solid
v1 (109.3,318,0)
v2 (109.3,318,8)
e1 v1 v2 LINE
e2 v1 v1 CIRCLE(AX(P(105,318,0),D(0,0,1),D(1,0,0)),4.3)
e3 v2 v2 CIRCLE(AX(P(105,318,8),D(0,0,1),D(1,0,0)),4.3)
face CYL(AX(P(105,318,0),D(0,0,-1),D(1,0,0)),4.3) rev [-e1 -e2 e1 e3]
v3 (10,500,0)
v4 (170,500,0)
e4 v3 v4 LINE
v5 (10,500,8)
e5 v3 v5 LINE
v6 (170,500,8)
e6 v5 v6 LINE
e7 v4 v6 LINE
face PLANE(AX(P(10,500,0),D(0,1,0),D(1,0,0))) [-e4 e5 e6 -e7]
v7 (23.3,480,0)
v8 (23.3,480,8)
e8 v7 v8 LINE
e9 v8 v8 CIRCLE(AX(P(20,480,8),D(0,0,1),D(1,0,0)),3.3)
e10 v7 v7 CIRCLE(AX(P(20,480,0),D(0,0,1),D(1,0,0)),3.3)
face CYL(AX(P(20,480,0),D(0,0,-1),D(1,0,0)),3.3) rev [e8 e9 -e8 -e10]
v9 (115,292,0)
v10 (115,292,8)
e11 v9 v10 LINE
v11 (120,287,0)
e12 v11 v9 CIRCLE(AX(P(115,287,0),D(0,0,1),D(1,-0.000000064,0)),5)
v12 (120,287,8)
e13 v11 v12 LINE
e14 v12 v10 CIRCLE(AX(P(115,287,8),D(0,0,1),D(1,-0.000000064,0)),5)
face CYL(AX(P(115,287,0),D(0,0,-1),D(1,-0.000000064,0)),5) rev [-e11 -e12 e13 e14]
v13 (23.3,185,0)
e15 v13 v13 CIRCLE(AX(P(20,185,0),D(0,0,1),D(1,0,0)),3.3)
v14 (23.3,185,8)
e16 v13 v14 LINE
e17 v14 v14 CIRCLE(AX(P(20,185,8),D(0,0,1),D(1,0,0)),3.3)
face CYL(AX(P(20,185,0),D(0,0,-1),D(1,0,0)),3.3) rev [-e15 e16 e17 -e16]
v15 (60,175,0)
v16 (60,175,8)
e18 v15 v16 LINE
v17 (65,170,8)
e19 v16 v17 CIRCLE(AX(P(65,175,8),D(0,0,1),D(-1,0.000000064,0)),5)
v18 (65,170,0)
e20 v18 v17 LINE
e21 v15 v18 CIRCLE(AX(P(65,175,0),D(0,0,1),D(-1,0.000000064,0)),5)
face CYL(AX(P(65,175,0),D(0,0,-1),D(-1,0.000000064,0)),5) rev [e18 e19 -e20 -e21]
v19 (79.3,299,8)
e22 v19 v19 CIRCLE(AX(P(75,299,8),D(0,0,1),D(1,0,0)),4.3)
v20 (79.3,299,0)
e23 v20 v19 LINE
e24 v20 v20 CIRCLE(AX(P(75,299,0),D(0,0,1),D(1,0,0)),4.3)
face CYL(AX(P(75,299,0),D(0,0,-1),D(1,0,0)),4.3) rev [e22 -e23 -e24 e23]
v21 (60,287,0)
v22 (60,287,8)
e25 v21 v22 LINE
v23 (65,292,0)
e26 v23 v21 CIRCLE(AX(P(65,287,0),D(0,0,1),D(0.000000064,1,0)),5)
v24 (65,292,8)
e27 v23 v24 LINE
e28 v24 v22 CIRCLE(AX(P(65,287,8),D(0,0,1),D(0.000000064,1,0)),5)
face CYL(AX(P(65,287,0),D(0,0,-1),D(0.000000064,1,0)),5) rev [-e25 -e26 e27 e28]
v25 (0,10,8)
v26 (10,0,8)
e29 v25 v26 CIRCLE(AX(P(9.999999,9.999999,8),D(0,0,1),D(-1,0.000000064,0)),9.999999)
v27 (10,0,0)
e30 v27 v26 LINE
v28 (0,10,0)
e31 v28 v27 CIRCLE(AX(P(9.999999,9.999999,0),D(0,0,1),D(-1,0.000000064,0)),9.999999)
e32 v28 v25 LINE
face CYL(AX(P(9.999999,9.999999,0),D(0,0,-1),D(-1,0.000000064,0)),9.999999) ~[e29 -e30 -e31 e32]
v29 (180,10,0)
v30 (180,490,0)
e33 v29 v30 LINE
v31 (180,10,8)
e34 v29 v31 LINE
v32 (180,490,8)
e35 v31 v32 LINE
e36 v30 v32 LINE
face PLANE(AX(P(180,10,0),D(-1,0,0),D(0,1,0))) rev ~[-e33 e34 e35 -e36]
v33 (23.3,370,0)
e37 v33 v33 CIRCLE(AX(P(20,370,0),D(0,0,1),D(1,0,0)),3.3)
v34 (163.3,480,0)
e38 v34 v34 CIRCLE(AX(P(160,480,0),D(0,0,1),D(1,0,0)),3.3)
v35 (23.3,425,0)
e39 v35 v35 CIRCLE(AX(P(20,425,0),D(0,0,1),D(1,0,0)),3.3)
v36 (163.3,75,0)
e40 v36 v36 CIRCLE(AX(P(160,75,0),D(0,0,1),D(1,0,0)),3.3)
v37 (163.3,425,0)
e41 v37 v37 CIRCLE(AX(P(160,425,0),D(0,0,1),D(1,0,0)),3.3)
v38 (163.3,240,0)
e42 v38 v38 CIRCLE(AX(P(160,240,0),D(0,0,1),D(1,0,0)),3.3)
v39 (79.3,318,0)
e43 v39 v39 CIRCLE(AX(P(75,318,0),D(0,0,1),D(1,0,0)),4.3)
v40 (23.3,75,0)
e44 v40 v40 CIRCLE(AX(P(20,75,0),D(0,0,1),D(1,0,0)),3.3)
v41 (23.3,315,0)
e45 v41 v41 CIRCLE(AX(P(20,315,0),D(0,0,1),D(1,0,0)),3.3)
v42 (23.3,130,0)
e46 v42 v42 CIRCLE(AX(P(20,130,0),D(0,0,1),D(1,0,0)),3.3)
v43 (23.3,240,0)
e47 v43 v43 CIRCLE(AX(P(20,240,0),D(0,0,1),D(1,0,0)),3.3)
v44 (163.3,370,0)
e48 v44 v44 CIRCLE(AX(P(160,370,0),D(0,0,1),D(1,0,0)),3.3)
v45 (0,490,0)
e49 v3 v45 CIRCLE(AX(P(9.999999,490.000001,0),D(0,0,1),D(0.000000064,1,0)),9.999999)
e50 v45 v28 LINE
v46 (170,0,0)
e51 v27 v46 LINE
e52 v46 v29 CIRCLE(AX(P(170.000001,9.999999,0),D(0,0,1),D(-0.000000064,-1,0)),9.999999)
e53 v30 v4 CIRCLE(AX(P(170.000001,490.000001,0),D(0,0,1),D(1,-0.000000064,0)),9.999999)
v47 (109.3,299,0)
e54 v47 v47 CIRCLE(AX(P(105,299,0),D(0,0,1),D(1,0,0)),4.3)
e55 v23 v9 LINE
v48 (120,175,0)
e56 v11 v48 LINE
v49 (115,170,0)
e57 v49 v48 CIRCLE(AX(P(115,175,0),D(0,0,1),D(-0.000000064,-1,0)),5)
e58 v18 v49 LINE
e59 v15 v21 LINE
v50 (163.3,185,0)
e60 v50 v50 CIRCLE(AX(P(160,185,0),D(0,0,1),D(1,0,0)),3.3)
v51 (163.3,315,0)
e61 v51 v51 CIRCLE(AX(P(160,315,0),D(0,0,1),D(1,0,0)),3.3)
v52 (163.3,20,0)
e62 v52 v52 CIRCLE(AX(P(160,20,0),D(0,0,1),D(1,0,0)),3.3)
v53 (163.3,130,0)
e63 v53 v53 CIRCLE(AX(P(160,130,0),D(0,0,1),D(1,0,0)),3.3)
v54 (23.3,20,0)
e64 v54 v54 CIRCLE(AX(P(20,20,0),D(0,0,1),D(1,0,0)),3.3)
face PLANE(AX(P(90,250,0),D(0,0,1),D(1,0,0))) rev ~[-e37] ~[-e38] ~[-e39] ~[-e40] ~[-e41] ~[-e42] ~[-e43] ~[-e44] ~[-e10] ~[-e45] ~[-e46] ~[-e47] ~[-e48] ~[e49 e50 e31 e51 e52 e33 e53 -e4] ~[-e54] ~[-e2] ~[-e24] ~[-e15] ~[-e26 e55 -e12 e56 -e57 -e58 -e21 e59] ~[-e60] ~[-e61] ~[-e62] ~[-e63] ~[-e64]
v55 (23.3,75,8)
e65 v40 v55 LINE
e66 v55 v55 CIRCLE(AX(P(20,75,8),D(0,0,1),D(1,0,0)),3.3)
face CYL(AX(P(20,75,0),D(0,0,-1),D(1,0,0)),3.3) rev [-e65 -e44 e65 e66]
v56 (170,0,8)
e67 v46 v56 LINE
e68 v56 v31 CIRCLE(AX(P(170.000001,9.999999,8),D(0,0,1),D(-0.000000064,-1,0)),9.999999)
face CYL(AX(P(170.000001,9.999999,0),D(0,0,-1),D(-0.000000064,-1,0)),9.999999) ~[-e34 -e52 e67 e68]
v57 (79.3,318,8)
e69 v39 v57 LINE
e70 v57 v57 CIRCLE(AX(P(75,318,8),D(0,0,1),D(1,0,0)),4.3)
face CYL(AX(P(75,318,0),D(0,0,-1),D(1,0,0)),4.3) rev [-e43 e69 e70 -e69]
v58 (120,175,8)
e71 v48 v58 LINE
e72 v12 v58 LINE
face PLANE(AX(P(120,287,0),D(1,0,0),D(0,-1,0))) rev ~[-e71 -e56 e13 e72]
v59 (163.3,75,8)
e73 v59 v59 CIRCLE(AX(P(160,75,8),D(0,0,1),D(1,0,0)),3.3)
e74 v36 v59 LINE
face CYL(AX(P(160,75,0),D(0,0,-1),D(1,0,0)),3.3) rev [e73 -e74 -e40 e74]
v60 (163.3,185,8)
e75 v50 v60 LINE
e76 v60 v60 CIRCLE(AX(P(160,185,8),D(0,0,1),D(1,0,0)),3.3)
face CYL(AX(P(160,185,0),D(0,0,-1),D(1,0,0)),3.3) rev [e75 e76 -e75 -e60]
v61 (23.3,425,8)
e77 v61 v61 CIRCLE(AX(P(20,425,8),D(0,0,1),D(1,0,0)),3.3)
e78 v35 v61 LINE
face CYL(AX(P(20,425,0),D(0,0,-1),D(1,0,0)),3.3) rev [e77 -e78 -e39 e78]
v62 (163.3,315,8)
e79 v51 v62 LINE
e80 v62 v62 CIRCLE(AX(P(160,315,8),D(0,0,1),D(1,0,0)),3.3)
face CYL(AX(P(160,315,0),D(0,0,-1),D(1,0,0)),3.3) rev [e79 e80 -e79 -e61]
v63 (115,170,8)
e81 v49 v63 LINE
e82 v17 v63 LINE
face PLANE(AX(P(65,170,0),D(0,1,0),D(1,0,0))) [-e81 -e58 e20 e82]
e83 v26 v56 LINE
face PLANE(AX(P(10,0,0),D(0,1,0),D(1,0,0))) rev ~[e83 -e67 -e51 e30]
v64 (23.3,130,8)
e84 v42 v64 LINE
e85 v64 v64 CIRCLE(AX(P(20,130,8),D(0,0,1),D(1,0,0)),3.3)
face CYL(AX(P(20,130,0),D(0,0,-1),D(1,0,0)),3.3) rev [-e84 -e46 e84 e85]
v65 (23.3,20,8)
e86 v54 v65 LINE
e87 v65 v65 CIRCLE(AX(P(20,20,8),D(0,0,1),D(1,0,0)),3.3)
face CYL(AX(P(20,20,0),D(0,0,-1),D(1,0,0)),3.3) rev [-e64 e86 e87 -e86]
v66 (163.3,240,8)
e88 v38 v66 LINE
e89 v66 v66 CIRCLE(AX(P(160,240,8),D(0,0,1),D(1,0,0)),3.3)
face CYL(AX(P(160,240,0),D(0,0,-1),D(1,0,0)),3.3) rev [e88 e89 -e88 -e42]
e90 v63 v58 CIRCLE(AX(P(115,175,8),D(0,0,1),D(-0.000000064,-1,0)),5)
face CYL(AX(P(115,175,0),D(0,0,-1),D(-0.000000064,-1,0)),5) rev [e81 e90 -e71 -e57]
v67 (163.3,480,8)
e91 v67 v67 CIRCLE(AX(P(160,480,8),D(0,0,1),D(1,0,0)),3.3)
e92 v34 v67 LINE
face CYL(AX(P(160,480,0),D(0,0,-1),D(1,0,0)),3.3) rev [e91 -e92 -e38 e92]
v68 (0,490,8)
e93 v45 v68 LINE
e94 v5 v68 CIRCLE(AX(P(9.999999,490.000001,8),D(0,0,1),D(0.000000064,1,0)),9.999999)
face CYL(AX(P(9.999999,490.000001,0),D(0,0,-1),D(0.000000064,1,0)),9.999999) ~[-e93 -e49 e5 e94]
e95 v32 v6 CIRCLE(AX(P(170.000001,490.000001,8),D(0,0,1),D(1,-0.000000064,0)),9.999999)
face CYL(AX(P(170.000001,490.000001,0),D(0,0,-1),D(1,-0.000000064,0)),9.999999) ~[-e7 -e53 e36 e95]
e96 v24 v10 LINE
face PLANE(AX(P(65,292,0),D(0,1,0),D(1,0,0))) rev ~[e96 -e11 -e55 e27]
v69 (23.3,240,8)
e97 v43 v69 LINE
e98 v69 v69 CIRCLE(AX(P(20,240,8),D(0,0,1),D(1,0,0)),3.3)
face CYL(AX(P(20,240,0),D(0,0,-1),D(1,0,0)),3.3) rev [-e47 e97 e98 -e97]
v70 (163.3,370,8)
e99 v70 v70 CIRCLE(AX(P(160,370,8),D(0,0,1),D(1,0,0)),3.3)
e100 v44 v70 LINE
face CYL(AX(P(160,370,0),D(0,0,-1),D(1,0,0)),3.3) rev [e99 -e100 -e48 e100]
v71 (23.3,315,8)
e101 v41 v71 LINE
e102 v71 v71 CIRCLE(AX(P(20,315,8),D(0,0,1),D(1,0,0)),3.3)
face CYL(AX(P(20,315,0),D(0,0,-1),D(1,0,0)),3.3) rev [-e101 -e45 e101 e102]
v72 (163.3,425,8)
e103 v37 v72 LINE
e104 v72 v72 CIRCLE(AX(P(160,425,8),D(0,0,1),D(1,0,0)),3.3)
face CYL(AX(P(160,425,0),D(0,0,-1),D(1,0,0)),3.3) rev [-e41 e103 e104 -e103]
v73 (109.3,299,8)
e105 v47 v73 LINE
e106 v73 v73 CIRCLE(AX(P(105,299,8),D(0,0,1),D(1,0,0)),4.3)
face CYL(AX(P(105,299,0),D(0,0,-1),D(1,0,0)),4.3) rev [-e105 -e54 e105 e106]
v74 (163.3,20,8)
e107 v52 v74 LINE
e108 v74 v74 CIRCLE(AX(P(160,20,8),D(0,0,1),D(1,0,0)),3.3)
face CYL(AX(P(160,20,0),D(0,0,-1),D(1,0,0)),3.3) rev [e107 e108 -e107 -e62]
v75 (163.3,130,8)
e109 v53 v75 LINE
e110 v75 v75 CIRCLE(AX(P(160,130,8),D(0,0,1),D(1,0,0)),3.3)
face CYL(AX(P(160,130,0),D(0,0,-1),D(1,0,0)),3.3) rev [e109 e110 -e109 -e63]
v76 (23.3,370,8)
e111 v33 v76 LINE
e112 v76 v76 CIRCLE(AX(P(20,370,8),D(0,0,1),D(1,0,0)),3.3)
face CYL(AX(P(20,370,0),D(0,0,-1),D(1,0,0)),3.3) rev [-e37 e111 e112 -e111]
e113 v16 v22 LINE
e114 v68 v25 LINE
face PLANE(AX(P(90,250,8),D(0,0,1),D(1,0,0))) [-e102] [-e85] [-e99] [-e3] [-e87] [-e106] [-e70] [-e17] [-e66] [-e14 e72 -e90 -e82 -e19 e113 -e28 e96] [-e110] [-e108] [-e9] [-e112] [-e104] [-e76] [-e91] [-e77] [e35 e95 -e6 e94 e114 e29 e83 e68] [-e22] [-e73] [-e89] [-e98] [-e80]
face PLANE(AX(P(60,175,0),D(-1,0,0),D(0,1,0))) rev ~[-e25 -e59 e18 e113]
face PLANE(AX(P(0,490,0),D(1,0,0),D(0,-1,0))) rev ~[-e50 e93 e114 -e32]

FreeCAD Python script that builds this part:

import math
import FreeCAD as App
import Part
import Sketcher
from FreeCAD import Vector
Q = App.Units.Quantity

doc = App.newDocument("Part")
body = doc.addObject("PartDesign::Body", "Body")

# Sketch on XY plane
sketch1 = doc.addObject("Sketcher::SketchObject", "Sketch")
body.addObject(sketch1)
sketch1.AttachmentSupport = (doc.XY_Plane, [""])
sketch1.MapMode = "FlatFace"
sketch1.addGeometry([
    Part.LineSegment(Vector(180, 10, 0), Vector(180, 490, 0)),  # 0
    Part.ArcOfCircle(Part.Circle(Vector(170, 490, 0), Vector(0, 0, 1), 10), math.radians(0), math.radians(90)),  # 1
    Part.LineSegment(Vector(170, 500, 0), Vector(10, 500, 0)),  # 2
    Part.ArcOfCircle(Part.Circle(Vector(10, 490, 0), Vector(0, 0, 1), 10), math.radians(90), math.radians(180)),  # 3
    Part.LineSegment(Vector(0, 490, 0), Vector(0, 10, 0)),  # 4
    Part.ArcOfCircle(Part.Circle(Vector(10, 10, 0), Vector(0, 0, 1), 10), math.radians(180), math.radians(270)),  # 5
    Part.LineSegment(Vector(10, 0, 0), Vector(170, 0, 0)),  # 6
    Part.ArcOfCircle(Part.Circle(Vector(170, 10, 0), Vector(0, 0, 1), 10), math.radians(-90), math.radians(0)),  # 7
    Part.Circle(Vector(20, 20, 0), Vector(0, 0, 1), 3.3),  # 8
    Part.Circle(Vector(20, 75, 0), Vector(0, 0, 1), 3.3),  # 9
    Part.Circle(Vector(20, 130, 0), Vector(0, 0, 1), 3.3),  # 10
    Part.Circle(Vector(20, 185, 0), Vector(0, 0, 1), 3.3),  # 11
    Part.Circle(Vector(20, 240, 0), Vector(0, 0, 1), 3.3),  # 12
    Part.LineSegment(Vector(115, 170, 0), Vector(65, 170, 0)),  # 13
    Part.ArcOfCircle(Part.Circle(Vector(65, 175, 0), Vector(0, 0, 1), 5), math.radians(180), math.radians(270)),  # 14
    Part.LineSegment(Vector(60, 175, 0), Vector(60, 287, 0)),  # 15
    Part.ArcOfCircle(Part.Circle(Vector(65, 287, 0), Vector(0, 0, 1), 5), math.radians(90), math.radians(180)),  # 16
    Part.LineSegment(Vector(65, 292, 0), Vector(115, 292, 0)),  # 17
    Part.ArcOfCircle(Part.Circle(Vector(115, 287, 0), Vector(0, 0, 1), 5), math.radians(0), math.radians(90)),  # 18
    Part.LineSegment(Vector(120, 287, 0), Vector(120, 175, 0)),  # 19
    Part.ArcOfCircle(Part.Circle(Vector(115, 175, 0), Vector(0, 0, 1), 5), math.radians(-90), math.radians(0)),  # 20
    Part.Circle(Vector(160, 20, 0), Vector(0, 0, 1), 3.3),  # 21
    Part.Circle(Vector(160, 75, 0), Vector(0, 0, 1), 3.3),  # 22
    Part.Circle(Vector(160, 130, 0), Vector(0, 0, 1), 3.3),  # 23
    Part.Circle(Vector(160, 185, 0), Vector(0, 0, 1), 3.3),  # 24
    Part.Circle(Vector(160, 240, 0), Vector(0, 0, 1), 3.3),  # 25
    Part.Circle(Vector(20, 315, 0), Vector(0, 0, 1), 3.3),  # 26
    Part.Circle(Vector(75, 299, 0), Vector(0, 0, 1), 4.3),  # 27
    Part.Circle(Vector(75, 318, 0), Vector(0, 0, 1), 4.3),  # 28
    Part.Circle(Vector(20, 370, 0), Vector(0, 0, 1), 3.3),  # 29
    Part.Circle(Vector(20, 425, 0), Vector(0, 0, 1), 3.3),  # 30
    Part.Circle(Vector(20, 480, 0), Vector(0, 0, 1), 3.3),  # 31
    Part.Circle(Vector(105, 299, 0), Vector(0, 0, 1), 4.3),  # 32
    Part.Circle(Vector(105, 318, 0), Vector(0, 0, 1), 4.3),  # 33
    Part.Circle(Vector(160, 315, 0), Vector(0, 0, 1), 3.3),  # 34
    Part.Circle(Vector(160, 370, 0), Vector(0, 0, 1), 3.3),  # 35
    Part.Circle(Vector(160, 425, 0), Vector(0, 0, 1), 3.3),  # 36
    Part.Circle(Vector(160, 480, 0), Vector(0, 0, 1), 3.3),  # 37
], False)
sketch1.addConstraint([
    Sketcher.Constraint("Tangent", 0, 2, 1, 1),
    Sketcher.Constraint("Tangent", 1, 2, 2, 1),
    Sketcher.Constraint("Tangent", 2, 2, 3, 1),
    Sketcher.Constraint("Tangent", 3, 2, 4, 1),
    Sketcher.Constraint("Tangent", 4, 2, 5, 1),
    Sketcher.Constraint("Tangent", 5, 2, 6, 1),
    Sketcher.Constraint("Tangent", 6, 2, 7, 1),
    Sketcher.Constraint("Tangent", 7, 2, 0, 1),
    Sketcher.Constraint("Tangent", 13, 2, 14, 2),
    Sketcher.Constraint("Tangent", 14, 1, 15, 1),
    Sketcher.Constraint("Tangent", 15, 2, 16, 2),
    Sketcher.Constraint("Tangent", 16, 1, 17, 1),
    Sketcher.Constraint("Tangent", 17, 2, 18, 2),
    Sketcher.Constraint("Tangent", 18, 1, 19, 1),
    Sketcher.Constraint("Tangent", 19, 2, 20, 2),
    Sketcher.Constraint("Tangent", 20, 1, 13, 1),
    Sketcher.Constraint("Vertical", 0),
    Sketcher.Constraint("Horizontal", 2),
    Sketcher.Constraint("Vertical", 4),
    Sketcher.Constraint("Horizontal", 6),
    Sketcher.Constraint("Horizontal", 13),
    Sketcher.Constraint("Vertical", 15),
    Sketcher.Constraint("Horizontal", 17),
    Sketcher.Constraint("Vertical", 19),
    Sketcher.Constraint("Equal", 1, 3),
    Sketcher.Constraint("Equal", 3, 5),
    Sketcher.Constraint("Equal", 5, 7),
    Sketcher.Constraint("Equal", 8, 9),
    Sketcher.Constraint("Equal", 9, 10),
    Sketcher.Constraint("Equal", 10, 11),
    Sketcher.Constraint("Equal", 11, 12),
    Sketcher.Constraint("Equal", 14, 16),
    Sketcher.Constraint("Equal", 16, 18),
    Sketcher.Constraint("Equal", 18, 20),
    Sketcher.Constraint("Equal", 12, 21),
    Sketcher.Constraint("Equal", 21, 22),
    Sketcher.Constraint("Equal", 22, 23),
    Sketcher.Constraint("Equal", 23, 24),
    Sketcher.Constraint("Equal", 24, 25),
    Sketcher.Constraint("Equal", 25, 26),
    Sketcher.Constraint("Equal", 27, 28),
    Sketcher.Constraint("Equal", 26, 29),
    Sketcher.Constraint("Equal", 29, 30),
    Sketcher.Constraint("Equal", 30, 31),
    Sketcher.Constraint("Equal", 28, 32),
    Sketcher.Constraint("Equal", 32, 33),
    Sketcher.Constraint("Equal", 31, 34),
    Sketcher.Constraint("Equal", 34, 35),
    Sketcher.Constraint("Equal", 35, 36),
    Sketcher.Constraint("Equal", 36, 37),
    Sketcher.Constraint("PointOnObject", 3, 2, -2),
    Sketcher.Constraint("PointOnObject", 5, 2, -1),
    Sketcher.Constraint("Horizontal", 8, 3, 21, 3),
    Sketcher.Constraint("Horizontal", 9, 3, 22, 3),
    Sketcher.Constraint("Horizontal", 10, 3, 23, 3),
    Sketcher.Constraint("Horizontal", 11, 3, 24, 3),
    Sketcher.Constraint("Horizontal", 12, 3, 25, 3),
    Sketcher.Constraint("Horizontal", 27, 3, 32, 3),
    Sketcher.Constraint("Horizontal", 28, 3, 33, 3),
    Sketcher.Constraint("Horizontal", 26, 3, 34, 3),
    Sketcher.Constraint("Horizontal", 29, 3, 35, 3),
    Sketcher.Constraint("Horizontal", 30, 3, 36, 3),
    Sketcher.Constraint("Horizontal", 31, 3, 37, 3),
    Sketcher.Constraint("Vertical", 8, 3, 9, 3),
    Sketcher.Constraint("Vertical", 9, 3, 10, 3),
    Sketcher.Constraint("Vertical", 10, 3, 11, 3),
    Sketcher.Constraint("Vertical", 11, 3, 12, 3),
    Sketcher.Constraint("Vertical", 21, 3, 22, 3),
    Sketcher.Constraint("Vertical", 22, 3, 23, 3),
    Sketcher.Constraint("Vertical", 23, 3, 24, 3),
    Sketcher.Constraint("Vertical", 24, 3, 25, 3),
    Sketcher.Constraint("Vertical", 12, 3, 26, 3),
    Sketcher.Constraint("Vertical", 27, 3, 28, 3),
    Sketcher.Constraint("Vertical", 26, 3, 29, 3),
    Sketcher.Constraint("Vertical", 29, 3, 30, 3),
    Sketcher.Constraint("Vertical", 30, 3, 31, 3),
    Sketcher.Constraint("Vertical", 32, 3, 33, 3),
    Sketcher.Constraint("Vertical", 25, 3, 34, 3),
    Sketcher.Constraint("Vertical", 34, 3, 35, 3),
    Sketcher.Constraint("Vertical", 35, 3, 36, 3),
    Sketcher.Constraint("Vertical", 36, 3, 37, 3),
    Sketcher.Constraint("Radius", 1, Q("9.999999 mm")),
    Sketcher.Constraint("Radius", 14, Q("5 mm")),
    Sketcher.Constraint("Diameter", 8, Q("6.6 mm")),
    Sketcher.Constraint("Diameter", 27, Q("8.6 mm")),
    Sketcher.Constraint("DistanceX", 2, 2, 2, 1, Q("160 mm")),
    Sketcher.Constraint("DistanceX", 13, 2, 13, 1, Q("50 mm")),
    Sketcher.Constraint("DistanceY", 0, 1, 0, 2, Q("480 mm")),
    Sketcher.Constraint("DistanceY", 15, 1, 15, 2, Q("112 mm")),
    Sketcher.Constraint("DistanceX", -1, 1, 8, 3, Q("20 mm")),
    Sketcher.Constraint("DistanceY", -1, 1, 8, 3, Q("20 mm")),
    Sketcher.Constraint("DistanceY", -1, 1, 9, 3, Q("75 mm")),
    Sketcher.Constraint("DistanceY", -1, 1, 10, 3, Q("130 mm")),
    Sketcher.Constraint("DistanceY", -1, 1, 11, 3, Q("185 mm")),
    Sketcher.Constraint("DistanceY", -1, 1, 12, 3, Q("240 mm")),
    Sketcher.Constraint("DistanceX", -1, 1, 14, 3, Q("65 mm")),
    Sketcher.Constraint("DistanceY", -1, 1, 14, 3, Q("175 mm")),
    Sketcher.Constraint("DistanceX", -1, 1, 21, 3, Q("160 mm")),
    Sketcher.Constraint("DistanceY", -1, 1, 26, 3, Q("315 mm")),
    Sketcher.Constraint("DistanceX", -1, 1, 27, 3, Q("75 mm")),
    Sketcher.Constraint("DistanceY", -1, 1, 27, 3, Q("299 mm")),
    Sketcher.Constraint("DistanceY", -1, 1, 28, 3, Q("318 mm")),
    Sketcher.Constraint("DistanceY", -1, 1, 29, 3, Q("370 mm")),
    Sketcher.Constraint("DistanceY", -1, 1, 30, 3, Q("425 mm")),
    Sketcher.Constraint("DistanceY", -1, 1, 31, 3, Q("480 mm")),
    Sketcher.Constraint("DistanceX", -1, 1, 32, 3, Q("105 mm")),
])
pad1 = doc.addObject("PartDesign::Pad", "Pad")
body.addObject(pad1)
pad1.Profile = sketch1
pad1.Length = 8

doc.recompute()
